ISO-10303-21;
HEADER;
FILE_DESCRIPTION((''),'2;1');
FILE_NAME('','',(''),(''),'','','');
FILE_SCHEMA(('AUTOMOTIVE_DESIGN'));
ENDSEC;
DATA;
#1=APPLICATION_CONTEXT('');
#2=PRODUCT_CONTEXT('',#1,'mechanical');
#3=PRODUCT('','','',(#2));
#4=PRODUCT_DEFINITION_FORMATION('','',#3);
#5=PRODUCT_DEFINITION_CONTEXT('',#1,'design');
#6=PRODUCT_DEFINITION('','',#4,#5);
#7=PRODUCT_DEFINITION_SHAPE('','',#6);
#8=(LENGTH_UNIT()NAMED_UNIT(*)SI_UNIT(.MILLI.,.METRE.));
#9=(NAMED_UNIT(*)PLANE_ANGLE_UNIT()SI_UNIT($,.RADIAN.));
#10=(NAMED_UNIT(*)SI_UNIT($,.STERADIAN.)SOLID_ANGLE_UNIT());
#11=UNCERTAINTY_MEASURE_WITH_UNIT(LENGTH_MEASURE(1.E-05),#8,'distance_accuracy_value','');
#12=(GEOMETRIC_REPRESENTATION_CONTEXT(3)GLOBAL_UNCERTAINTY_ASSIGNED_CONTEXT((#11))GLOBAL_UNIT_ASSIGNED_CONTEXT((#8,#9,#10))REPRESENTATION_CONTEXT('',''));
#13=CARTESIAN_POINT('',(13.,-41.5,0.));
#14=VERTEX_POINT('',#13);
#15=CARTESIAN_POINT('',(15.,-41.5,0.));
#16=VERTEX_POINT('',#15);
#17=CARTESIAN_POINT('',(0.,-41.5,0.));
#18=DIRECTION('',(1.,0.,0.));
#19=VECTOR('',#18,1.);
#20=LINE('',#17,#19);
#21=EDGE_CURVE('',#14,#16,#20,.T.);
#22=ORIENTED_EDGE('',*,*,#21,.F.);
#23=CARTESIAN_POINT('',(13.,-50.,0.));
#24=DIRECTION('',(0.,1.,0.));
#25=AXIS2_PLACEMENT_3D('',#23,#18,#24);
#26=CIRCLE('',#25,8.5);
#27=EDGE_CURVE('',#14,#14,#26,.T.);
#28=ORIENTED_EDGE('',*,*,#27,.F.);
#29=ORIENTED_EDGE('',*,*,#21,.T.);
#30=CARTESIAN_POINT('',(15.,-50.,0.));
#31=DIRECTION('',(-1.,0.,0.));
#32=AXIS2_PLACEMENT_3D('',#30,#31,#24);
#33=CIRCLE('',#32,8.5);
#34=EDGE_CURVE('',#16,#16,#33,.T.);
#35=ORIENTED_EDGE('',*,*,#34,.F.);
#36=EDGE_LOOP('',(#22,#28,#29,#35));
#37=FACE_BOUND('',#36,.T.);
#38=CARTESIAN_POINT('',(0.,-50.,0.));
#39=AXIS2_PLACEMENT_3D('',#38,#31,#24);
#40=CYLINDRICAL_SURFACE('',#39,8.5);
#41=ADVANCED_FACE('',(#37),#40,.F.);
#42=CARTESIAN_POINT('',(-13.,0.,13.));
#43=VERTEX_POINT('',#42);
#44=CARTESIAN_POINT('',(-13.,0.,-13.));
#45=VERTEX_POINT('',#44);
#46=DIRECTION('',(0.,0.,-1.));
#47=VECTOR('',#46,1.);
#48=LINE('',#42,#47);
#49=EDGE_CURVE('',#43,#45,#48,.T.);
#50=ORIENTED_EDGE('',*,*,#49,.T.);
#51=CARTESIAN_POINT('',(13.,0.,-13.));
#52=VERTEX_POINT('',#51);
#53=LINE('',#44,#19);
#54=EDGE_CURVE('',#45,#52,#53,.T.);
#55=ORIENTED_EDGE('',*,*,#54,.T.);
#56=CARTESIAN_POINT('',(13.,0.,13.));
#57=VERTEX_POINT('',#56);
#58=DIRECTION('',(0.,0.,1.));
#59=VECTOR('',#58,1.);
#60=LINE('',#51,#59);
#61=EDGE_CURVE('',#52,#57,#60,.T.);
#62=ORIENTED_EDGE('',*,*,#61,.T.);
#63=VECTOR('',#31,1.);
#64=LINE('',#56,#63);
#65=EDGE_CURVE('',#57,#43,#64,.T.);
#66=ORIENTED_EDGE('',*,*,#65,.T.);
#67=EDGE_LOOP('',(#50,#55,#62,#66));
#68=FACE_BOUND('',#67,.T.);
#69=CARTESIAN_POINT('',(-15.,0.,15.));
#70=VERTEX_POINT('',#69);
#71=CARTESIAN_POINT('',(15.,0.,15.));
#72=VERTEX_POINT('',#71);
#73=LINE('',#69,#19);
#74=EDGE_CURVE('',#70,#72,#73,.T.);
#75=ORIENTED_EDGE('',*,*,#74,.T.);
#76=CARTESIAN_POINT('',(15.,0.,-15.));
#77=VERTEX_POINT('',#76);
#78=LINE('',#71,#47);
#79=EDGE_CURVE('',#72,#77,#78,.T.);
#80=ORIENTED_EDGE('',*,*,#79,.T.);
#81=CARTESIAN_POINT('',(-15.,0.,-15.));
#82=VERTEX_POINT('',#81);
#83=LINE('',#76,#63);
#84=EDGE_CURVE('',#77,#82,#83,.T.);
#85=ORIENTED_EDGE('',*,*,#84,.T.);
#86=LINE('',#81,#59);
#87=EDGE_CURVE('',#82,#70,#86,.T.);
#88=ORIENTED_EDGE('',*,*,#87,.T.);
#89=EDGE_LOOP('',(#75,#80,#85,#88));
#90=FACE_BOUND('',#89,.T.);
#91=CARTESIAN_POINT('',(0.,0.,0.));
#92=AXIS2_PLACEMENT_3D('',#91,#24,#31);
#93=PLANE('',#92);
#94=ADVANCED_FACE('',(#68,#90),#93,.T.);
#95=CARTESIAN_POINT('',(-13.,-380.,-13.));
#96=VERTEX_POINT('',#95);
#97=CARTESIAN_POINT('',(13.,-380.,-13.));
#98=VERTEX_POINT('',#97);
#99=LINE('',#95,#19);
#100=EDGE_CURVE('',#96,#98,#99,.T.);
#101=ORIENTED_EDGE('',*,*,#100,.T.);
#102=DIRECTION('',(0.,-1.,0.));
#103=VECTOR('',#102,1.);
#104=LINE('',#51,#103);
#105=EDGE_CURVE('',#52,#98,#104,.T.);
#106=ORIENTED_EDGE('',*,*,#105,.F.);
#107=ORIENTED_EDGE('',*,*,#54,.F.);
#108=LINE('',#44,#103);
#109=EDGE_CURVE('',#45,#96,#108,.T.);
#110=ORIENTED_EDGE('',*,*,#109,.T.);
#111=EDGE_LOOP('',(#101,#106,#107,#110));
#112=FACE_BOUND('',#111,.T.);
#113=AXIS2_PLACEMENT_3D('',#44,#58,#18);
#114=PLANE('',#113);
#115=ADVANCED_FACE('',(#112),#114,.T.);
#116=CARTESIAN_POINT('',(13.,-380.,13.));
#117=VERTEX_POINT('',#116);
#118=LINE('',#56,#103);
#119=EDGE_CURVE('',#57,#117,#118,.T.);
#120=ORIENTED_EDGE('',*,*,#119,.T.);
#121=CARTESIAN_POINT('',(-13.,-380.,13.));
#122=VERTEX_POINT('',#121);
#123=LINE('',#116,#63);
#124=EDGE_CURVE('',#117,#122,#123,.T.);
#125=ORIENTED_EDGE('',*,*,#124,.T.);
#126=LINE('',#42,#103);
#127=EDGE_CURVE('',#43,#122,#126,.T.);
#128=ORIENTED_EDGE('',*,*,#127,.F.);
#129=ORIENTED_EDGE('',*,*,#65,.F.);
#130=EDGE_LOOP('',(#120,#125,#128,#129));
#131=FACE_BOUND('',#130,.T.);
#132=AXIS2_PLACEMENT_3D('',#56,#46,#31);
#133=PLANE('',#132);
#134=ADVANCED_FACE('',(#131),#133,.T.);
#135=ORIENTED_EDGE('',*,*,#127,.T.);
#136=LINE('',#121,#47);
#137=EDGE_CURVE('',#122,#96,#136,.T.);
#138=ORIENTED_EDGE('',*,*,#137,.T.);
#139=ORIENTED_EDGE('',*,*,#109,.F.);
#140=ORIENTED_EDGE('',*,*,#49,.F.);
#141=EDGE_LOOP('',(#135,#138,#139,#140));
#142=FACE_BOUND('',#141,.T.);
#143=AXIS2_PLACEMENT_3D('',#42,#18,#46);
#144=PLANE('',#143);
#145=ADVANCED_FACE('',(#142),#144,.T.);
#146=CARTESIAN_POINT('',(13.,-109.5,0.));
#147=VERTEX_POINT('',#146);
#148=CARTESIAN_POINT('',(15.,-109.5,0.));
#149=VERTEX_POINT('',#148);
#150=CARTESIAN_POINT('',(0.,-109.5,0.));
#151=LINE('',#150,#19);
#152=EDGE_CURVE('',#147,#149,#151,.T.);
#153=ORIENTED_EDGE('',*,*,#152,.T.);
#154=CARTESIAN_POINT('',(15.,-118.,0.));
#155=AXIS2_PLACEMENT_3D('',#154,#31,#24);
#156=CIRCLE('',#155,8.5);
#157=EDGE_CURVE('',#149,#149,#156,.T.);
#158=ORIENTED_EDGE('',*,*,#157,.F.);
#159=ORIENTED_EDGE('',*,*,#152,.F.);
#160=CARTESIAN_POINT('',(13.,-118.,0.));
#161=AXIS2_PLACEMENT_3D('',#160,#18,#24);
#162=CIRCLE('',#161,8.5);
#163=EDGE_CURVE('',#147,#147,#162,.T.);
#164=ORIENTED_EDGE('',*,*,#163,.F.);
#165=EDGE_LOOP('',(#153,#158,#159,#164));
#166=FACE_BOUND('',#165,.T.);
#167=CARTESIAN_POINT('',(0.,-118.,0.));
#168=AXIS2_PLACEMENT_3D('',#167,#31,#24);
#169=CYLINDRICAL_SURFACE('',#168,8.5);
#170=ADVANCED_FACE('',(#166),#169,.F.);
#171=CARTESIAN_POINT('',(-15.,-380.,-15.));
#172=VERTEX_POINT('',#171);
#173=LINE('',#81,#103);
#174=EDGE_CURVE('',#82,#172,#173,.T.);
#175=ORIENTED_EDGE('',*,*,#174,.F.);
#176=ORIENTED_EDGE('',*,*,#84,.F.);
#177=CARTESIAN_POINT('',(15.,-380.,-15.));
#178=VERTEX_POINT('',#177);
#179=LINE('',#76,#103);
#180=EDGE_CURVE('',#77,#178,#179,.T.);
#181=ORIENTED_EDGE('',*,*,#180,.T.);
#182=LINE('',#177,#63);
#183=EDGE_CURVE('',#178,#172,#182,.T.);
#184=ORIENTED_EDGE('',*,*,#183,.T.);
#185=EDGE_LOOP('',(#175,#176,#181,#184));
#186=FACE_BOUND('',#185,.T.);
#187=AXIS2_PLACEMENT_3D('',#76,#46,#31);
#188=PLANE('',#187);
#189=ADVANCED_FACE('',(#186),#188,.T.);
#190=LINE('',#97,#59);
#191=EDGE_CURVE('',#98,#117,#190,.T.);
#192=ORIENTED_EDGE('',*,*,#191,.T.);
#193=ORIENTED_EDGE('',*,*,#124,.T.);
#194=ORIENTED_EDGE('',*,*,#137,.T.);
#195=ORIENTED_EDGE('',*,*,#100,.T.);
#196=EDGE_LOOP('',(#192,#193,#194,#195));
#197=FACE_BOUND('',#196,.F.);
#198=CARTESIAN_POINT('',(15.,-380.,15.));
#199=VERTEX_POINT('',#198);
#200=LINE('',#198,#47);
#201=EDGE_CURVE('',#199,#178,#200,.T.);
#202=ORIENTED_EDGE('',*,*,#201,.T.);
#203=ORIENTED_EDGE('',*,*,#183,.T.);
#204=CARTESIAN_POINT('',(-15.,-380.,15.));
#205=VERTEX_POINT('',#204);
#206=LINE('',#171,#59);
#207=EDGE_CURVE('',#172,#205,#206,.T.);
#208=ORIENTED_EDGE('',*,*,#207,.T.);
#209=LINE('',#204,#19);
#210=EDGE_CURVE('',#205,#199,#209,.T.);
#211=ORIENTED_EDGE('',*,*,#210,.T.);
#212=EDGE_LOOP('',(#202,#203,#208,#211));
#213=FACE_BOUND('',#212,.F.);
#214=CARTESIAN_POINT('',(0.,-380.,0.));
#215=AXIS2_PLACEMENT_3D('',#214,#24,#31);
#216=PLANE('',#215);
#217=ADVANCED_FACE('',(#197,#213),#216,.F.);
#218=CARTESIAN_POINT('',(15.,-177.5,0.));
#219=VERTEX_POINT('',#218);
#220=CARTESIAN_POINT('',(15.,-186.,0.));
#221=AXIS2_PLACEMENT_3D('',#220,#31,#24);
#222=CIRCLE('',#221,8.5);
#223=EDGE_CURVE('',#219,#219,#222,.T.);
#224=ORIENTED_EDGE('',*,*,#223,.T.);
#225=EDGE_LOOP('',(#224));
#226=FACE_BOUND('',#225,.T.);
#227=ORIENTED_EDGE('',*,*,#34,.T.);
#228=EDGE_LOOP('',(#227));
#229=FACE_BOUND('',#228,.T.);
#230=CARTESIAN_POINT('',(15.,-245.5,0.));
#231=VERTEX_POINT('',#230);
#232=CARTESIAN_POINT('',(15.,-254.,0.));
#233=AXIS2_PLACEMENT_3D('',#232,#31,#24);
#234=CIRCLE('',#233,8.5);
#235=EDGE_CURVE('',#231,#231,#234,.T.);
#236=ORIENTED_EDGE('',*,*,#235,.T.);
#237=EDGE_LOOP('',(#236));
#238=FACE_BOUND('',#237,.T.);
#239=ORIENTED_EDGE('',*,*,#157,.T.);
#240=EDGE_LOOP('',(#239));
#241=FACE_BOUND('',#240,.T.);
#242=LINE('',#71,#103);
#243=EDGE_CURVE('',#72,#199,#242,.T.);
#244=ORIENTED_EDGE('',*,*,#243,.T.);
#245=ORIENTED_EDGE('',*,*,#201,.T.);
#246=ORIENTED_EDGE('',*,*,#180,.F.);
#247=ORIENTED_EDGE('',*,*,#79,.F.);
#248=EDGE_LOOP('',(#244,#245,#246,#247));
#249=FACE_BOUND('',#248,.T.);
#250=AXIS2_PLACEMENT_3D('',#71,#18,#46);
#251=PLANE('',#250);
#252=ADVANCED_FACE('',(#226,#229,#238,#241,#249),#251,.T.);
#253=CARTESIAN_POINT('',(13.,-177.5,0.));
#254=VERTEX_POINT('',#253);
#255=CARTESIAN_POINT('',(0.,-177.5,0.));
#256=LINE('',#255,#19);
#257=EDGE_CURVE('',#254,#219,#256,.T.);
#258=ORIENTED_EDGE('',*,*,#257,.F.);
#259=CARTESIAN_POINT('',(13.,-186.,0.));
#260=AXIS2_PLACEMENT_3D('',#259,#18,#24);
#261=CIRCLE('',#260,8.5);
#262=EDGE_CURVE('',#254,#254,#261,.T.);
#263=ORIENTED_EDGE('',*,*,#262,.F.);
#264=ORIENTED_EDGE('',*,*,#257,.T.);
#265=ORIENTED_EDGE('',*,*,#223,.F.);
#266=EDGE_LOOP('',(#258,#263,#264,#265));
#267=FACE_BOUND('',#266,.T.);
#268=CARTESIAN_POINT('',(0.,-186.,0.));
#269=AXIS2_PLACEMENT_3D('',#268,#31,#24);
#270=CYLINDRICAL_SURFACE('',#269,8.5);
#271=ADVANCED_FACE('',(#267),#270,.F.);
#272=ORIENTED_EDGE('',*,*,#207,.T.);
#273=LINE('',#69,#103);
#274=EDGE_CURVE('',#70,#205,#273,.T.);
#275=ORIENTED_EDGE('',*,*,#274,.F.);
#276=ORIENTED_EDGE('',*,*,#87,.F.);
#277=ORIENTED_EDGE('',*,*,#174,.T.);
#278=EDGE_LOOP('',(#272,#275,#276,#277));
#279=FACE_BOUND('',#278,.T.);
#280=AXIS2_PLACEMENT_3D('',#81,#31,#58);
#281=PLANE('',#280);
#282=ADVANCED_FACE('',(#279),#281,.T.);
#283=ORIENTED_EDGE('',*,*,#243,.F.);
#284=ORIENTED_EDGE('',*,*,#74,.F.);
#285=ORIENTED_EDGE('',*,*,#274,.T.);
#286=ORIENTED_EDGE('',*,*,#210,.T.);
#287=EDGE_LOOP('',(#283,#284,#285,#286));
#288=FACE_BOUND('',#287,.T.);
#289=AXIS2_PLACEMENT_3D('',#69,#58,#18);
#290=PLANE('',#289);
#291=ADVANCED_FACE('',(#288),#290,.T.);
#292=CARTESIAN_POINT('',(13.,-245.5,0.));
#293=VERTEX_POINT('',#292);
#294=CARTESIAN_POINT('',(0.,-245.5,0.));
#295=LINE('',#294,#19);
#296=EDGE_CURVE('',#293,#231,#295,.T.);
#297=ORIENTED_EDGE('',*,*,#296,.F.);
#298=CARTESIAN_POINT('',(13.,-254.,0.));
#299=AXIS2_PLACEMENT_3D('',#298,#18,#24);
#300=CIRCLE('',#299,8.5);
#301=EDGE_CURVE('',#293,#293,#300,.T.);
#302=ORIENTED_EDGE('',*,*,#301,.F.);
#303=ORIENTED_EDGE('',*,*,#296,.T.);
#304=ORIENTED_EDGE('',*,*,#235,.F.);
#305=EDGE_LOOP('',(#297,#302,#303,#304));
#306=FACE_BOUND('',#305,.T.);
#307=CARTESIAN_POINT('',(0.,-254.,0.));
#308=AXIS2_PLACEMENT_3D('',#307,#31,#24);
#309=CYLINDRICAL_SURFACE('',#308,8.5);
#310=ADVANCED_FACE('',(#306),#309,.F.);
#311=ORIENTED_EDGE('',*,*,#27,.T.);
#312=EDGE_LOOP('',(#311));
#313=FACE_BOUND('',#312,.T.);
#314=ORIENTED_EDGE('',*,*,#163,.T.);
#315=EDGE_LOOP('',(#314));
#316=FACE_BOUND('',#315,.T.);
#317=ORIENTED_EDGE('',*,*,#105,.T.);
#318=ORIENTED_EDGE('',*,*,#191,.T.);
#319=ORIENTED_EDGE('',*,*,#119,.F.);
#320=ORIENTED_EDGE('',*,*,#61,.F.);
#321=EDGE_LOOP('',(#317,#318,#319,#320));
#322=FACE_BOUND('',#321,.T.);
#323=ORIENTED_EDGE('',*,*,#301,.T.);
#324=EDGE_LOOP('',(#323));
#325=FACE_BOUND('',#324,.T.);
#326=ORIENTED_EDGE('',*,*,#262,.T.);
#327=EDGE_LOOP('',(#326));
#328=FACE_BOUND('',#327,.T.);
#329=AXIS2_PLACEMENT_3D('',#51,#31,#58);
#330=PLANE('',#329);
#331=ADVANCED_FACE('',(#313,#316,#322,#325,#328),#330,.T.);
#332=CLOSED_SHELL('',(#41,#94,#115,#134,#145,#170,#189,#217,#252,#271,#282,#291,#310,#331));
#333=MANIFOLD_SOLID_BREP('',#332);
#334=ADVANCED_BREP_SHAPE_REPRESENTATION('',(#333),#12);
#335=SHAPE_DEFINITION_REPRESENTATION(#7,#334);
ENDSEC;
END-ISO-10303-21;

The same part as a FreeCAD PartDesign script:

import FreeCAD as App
import Part
import Sketcher

V = App.Vector


def add_polygon(sketch, points):
    """Adds a closed chain of lines whose ends are joined by coincident constraints."""
    first, n = sketch.GeometryCount, len(points)
    for a, b in zip(points, points[1:] + points[:1]):
        sketch.addGeometry(Part.LineSegment(App.Vector(*a, 0), App.Vector(*b, 0)), False)
    for i in range(n):
        sketch.addConstraint(Sketcher.Constraint("Coincident", first + i, 2, first + (i + 1) % n, 1))

doc = App.newDocument("Part")
params = doc.addObject("Spreadsheet::Sheet", "Params")
for row, (alias, value) in enumerate([
    ("sketch1_width", "30 mm"),
    ("pad1_length", "380 mm"),
    ("sketch2_diameter", "17 mm"),
    ("linearpattern_pitch", "68 mm"),
], start=1):
    params.set(f"A{row}", alias)
    params.set(f"B{row}", "=" + value)
    params.setAlias(f"B{row}", alias)

body = doc.addObject("PartDesign::Body", "Body")

sketch1 = body.newObject("Sketcher::SketchObject", "Sketch")
sketch1.AttachmentSupport = (doc.getObject("XZ_Plane"), [""])
sketch1.MapMode = "FlatFace"
add_polygon(sketch1, [(-15, -15), (-15, 15), (15, 15), (15, -15)])
add_polygon(sketch1, [(13, -13), (13, 13), (-13, 13), (-13, -13)])
sketch1.addConstraint([
    Sketcher.Constraint("Vertical", 0),
    Sketcher.Constraint("Horizontal", 1),
    Sketcher.Constraint("Vertical", 2),
    Sketcher.Constraint("Horizontal", 3),
    Sketcher.Constraint("Vertical", 4),
    Sketcher.Constraint("Horizontal", 5),
    Sketcher.Constraint("Vertical", 6),
    Sketcher.Constraint("Horizontal", 7),
    Sketcher.Constraint("Symmetric", 0, 2, 2, 2, -1, 1),
    Sketcher.Constraint("Symmetric", 4, 2, 6, 2, -1, 1),
    Sketcher.Constraint("Equal", 3, 0),
    Sketcher.Constraint("Equal", 7, 4),
    Sketcher.Constraint("DistanceX", 1, 1, 1, 2, 30.0),
    Sketcher.Constraint("DistanceX", 4, 2, 1, 2, 2.0),
])
sketch1.setExpression("Constraints[20]", "Params.sketch1_width")
pad1 = body.newObject("PartDesign::Pad", "Pad")
pad1.Profile = sketch1
pad1.setExpression("Length", "Params.pad1_length")

sketch2 = body.newObject("Sketcher::SketchObject", "Sketch001")
sketch2.AttachmentSupport = (doc.getObject("YZ_Plane"), [""])
sketch2.MapMode = "FlatFace"
sketch2.addGeometry(Part.Circle(V(-50, 0, 0), V(0, 0, 1), 8), False)
sketch2.addConstraint([
    Sketcher.Constraint("PointOnObject", 0, 3, -1),
    Sketcher.Constraint("Diameter", 0, 17.0),
    Sketcher.Constraint("DistanceX", 0, 3, -1, 1, 50.0),
])
sketch2.setExpression("Constraints[1]", "Params.sketch2_diameter")
pocket1 = body.newObject("PartDesign::Pocket", "Pocket")
pocket1.Profile = sketch2
pocket1.Type = "ThroughAll"
pocket1.Reversed = True
doc.recompute()

linearpattern = body.newObject("PartDesign::LinearPattern", "LinearPattern")
linearpattern.Originals = [pocket1]
linearpattern.Direction = (doc.getObject("Y_Axis"), [""])
linearpattern.Mode = "offset"
linearpattern.setExpression("Offset", "Params.linearpattern_pitch")
linearpattern.Occurrences = 4
linearpattern.Reversed = True
body.Tip = linearpattern

doc.recompute()
